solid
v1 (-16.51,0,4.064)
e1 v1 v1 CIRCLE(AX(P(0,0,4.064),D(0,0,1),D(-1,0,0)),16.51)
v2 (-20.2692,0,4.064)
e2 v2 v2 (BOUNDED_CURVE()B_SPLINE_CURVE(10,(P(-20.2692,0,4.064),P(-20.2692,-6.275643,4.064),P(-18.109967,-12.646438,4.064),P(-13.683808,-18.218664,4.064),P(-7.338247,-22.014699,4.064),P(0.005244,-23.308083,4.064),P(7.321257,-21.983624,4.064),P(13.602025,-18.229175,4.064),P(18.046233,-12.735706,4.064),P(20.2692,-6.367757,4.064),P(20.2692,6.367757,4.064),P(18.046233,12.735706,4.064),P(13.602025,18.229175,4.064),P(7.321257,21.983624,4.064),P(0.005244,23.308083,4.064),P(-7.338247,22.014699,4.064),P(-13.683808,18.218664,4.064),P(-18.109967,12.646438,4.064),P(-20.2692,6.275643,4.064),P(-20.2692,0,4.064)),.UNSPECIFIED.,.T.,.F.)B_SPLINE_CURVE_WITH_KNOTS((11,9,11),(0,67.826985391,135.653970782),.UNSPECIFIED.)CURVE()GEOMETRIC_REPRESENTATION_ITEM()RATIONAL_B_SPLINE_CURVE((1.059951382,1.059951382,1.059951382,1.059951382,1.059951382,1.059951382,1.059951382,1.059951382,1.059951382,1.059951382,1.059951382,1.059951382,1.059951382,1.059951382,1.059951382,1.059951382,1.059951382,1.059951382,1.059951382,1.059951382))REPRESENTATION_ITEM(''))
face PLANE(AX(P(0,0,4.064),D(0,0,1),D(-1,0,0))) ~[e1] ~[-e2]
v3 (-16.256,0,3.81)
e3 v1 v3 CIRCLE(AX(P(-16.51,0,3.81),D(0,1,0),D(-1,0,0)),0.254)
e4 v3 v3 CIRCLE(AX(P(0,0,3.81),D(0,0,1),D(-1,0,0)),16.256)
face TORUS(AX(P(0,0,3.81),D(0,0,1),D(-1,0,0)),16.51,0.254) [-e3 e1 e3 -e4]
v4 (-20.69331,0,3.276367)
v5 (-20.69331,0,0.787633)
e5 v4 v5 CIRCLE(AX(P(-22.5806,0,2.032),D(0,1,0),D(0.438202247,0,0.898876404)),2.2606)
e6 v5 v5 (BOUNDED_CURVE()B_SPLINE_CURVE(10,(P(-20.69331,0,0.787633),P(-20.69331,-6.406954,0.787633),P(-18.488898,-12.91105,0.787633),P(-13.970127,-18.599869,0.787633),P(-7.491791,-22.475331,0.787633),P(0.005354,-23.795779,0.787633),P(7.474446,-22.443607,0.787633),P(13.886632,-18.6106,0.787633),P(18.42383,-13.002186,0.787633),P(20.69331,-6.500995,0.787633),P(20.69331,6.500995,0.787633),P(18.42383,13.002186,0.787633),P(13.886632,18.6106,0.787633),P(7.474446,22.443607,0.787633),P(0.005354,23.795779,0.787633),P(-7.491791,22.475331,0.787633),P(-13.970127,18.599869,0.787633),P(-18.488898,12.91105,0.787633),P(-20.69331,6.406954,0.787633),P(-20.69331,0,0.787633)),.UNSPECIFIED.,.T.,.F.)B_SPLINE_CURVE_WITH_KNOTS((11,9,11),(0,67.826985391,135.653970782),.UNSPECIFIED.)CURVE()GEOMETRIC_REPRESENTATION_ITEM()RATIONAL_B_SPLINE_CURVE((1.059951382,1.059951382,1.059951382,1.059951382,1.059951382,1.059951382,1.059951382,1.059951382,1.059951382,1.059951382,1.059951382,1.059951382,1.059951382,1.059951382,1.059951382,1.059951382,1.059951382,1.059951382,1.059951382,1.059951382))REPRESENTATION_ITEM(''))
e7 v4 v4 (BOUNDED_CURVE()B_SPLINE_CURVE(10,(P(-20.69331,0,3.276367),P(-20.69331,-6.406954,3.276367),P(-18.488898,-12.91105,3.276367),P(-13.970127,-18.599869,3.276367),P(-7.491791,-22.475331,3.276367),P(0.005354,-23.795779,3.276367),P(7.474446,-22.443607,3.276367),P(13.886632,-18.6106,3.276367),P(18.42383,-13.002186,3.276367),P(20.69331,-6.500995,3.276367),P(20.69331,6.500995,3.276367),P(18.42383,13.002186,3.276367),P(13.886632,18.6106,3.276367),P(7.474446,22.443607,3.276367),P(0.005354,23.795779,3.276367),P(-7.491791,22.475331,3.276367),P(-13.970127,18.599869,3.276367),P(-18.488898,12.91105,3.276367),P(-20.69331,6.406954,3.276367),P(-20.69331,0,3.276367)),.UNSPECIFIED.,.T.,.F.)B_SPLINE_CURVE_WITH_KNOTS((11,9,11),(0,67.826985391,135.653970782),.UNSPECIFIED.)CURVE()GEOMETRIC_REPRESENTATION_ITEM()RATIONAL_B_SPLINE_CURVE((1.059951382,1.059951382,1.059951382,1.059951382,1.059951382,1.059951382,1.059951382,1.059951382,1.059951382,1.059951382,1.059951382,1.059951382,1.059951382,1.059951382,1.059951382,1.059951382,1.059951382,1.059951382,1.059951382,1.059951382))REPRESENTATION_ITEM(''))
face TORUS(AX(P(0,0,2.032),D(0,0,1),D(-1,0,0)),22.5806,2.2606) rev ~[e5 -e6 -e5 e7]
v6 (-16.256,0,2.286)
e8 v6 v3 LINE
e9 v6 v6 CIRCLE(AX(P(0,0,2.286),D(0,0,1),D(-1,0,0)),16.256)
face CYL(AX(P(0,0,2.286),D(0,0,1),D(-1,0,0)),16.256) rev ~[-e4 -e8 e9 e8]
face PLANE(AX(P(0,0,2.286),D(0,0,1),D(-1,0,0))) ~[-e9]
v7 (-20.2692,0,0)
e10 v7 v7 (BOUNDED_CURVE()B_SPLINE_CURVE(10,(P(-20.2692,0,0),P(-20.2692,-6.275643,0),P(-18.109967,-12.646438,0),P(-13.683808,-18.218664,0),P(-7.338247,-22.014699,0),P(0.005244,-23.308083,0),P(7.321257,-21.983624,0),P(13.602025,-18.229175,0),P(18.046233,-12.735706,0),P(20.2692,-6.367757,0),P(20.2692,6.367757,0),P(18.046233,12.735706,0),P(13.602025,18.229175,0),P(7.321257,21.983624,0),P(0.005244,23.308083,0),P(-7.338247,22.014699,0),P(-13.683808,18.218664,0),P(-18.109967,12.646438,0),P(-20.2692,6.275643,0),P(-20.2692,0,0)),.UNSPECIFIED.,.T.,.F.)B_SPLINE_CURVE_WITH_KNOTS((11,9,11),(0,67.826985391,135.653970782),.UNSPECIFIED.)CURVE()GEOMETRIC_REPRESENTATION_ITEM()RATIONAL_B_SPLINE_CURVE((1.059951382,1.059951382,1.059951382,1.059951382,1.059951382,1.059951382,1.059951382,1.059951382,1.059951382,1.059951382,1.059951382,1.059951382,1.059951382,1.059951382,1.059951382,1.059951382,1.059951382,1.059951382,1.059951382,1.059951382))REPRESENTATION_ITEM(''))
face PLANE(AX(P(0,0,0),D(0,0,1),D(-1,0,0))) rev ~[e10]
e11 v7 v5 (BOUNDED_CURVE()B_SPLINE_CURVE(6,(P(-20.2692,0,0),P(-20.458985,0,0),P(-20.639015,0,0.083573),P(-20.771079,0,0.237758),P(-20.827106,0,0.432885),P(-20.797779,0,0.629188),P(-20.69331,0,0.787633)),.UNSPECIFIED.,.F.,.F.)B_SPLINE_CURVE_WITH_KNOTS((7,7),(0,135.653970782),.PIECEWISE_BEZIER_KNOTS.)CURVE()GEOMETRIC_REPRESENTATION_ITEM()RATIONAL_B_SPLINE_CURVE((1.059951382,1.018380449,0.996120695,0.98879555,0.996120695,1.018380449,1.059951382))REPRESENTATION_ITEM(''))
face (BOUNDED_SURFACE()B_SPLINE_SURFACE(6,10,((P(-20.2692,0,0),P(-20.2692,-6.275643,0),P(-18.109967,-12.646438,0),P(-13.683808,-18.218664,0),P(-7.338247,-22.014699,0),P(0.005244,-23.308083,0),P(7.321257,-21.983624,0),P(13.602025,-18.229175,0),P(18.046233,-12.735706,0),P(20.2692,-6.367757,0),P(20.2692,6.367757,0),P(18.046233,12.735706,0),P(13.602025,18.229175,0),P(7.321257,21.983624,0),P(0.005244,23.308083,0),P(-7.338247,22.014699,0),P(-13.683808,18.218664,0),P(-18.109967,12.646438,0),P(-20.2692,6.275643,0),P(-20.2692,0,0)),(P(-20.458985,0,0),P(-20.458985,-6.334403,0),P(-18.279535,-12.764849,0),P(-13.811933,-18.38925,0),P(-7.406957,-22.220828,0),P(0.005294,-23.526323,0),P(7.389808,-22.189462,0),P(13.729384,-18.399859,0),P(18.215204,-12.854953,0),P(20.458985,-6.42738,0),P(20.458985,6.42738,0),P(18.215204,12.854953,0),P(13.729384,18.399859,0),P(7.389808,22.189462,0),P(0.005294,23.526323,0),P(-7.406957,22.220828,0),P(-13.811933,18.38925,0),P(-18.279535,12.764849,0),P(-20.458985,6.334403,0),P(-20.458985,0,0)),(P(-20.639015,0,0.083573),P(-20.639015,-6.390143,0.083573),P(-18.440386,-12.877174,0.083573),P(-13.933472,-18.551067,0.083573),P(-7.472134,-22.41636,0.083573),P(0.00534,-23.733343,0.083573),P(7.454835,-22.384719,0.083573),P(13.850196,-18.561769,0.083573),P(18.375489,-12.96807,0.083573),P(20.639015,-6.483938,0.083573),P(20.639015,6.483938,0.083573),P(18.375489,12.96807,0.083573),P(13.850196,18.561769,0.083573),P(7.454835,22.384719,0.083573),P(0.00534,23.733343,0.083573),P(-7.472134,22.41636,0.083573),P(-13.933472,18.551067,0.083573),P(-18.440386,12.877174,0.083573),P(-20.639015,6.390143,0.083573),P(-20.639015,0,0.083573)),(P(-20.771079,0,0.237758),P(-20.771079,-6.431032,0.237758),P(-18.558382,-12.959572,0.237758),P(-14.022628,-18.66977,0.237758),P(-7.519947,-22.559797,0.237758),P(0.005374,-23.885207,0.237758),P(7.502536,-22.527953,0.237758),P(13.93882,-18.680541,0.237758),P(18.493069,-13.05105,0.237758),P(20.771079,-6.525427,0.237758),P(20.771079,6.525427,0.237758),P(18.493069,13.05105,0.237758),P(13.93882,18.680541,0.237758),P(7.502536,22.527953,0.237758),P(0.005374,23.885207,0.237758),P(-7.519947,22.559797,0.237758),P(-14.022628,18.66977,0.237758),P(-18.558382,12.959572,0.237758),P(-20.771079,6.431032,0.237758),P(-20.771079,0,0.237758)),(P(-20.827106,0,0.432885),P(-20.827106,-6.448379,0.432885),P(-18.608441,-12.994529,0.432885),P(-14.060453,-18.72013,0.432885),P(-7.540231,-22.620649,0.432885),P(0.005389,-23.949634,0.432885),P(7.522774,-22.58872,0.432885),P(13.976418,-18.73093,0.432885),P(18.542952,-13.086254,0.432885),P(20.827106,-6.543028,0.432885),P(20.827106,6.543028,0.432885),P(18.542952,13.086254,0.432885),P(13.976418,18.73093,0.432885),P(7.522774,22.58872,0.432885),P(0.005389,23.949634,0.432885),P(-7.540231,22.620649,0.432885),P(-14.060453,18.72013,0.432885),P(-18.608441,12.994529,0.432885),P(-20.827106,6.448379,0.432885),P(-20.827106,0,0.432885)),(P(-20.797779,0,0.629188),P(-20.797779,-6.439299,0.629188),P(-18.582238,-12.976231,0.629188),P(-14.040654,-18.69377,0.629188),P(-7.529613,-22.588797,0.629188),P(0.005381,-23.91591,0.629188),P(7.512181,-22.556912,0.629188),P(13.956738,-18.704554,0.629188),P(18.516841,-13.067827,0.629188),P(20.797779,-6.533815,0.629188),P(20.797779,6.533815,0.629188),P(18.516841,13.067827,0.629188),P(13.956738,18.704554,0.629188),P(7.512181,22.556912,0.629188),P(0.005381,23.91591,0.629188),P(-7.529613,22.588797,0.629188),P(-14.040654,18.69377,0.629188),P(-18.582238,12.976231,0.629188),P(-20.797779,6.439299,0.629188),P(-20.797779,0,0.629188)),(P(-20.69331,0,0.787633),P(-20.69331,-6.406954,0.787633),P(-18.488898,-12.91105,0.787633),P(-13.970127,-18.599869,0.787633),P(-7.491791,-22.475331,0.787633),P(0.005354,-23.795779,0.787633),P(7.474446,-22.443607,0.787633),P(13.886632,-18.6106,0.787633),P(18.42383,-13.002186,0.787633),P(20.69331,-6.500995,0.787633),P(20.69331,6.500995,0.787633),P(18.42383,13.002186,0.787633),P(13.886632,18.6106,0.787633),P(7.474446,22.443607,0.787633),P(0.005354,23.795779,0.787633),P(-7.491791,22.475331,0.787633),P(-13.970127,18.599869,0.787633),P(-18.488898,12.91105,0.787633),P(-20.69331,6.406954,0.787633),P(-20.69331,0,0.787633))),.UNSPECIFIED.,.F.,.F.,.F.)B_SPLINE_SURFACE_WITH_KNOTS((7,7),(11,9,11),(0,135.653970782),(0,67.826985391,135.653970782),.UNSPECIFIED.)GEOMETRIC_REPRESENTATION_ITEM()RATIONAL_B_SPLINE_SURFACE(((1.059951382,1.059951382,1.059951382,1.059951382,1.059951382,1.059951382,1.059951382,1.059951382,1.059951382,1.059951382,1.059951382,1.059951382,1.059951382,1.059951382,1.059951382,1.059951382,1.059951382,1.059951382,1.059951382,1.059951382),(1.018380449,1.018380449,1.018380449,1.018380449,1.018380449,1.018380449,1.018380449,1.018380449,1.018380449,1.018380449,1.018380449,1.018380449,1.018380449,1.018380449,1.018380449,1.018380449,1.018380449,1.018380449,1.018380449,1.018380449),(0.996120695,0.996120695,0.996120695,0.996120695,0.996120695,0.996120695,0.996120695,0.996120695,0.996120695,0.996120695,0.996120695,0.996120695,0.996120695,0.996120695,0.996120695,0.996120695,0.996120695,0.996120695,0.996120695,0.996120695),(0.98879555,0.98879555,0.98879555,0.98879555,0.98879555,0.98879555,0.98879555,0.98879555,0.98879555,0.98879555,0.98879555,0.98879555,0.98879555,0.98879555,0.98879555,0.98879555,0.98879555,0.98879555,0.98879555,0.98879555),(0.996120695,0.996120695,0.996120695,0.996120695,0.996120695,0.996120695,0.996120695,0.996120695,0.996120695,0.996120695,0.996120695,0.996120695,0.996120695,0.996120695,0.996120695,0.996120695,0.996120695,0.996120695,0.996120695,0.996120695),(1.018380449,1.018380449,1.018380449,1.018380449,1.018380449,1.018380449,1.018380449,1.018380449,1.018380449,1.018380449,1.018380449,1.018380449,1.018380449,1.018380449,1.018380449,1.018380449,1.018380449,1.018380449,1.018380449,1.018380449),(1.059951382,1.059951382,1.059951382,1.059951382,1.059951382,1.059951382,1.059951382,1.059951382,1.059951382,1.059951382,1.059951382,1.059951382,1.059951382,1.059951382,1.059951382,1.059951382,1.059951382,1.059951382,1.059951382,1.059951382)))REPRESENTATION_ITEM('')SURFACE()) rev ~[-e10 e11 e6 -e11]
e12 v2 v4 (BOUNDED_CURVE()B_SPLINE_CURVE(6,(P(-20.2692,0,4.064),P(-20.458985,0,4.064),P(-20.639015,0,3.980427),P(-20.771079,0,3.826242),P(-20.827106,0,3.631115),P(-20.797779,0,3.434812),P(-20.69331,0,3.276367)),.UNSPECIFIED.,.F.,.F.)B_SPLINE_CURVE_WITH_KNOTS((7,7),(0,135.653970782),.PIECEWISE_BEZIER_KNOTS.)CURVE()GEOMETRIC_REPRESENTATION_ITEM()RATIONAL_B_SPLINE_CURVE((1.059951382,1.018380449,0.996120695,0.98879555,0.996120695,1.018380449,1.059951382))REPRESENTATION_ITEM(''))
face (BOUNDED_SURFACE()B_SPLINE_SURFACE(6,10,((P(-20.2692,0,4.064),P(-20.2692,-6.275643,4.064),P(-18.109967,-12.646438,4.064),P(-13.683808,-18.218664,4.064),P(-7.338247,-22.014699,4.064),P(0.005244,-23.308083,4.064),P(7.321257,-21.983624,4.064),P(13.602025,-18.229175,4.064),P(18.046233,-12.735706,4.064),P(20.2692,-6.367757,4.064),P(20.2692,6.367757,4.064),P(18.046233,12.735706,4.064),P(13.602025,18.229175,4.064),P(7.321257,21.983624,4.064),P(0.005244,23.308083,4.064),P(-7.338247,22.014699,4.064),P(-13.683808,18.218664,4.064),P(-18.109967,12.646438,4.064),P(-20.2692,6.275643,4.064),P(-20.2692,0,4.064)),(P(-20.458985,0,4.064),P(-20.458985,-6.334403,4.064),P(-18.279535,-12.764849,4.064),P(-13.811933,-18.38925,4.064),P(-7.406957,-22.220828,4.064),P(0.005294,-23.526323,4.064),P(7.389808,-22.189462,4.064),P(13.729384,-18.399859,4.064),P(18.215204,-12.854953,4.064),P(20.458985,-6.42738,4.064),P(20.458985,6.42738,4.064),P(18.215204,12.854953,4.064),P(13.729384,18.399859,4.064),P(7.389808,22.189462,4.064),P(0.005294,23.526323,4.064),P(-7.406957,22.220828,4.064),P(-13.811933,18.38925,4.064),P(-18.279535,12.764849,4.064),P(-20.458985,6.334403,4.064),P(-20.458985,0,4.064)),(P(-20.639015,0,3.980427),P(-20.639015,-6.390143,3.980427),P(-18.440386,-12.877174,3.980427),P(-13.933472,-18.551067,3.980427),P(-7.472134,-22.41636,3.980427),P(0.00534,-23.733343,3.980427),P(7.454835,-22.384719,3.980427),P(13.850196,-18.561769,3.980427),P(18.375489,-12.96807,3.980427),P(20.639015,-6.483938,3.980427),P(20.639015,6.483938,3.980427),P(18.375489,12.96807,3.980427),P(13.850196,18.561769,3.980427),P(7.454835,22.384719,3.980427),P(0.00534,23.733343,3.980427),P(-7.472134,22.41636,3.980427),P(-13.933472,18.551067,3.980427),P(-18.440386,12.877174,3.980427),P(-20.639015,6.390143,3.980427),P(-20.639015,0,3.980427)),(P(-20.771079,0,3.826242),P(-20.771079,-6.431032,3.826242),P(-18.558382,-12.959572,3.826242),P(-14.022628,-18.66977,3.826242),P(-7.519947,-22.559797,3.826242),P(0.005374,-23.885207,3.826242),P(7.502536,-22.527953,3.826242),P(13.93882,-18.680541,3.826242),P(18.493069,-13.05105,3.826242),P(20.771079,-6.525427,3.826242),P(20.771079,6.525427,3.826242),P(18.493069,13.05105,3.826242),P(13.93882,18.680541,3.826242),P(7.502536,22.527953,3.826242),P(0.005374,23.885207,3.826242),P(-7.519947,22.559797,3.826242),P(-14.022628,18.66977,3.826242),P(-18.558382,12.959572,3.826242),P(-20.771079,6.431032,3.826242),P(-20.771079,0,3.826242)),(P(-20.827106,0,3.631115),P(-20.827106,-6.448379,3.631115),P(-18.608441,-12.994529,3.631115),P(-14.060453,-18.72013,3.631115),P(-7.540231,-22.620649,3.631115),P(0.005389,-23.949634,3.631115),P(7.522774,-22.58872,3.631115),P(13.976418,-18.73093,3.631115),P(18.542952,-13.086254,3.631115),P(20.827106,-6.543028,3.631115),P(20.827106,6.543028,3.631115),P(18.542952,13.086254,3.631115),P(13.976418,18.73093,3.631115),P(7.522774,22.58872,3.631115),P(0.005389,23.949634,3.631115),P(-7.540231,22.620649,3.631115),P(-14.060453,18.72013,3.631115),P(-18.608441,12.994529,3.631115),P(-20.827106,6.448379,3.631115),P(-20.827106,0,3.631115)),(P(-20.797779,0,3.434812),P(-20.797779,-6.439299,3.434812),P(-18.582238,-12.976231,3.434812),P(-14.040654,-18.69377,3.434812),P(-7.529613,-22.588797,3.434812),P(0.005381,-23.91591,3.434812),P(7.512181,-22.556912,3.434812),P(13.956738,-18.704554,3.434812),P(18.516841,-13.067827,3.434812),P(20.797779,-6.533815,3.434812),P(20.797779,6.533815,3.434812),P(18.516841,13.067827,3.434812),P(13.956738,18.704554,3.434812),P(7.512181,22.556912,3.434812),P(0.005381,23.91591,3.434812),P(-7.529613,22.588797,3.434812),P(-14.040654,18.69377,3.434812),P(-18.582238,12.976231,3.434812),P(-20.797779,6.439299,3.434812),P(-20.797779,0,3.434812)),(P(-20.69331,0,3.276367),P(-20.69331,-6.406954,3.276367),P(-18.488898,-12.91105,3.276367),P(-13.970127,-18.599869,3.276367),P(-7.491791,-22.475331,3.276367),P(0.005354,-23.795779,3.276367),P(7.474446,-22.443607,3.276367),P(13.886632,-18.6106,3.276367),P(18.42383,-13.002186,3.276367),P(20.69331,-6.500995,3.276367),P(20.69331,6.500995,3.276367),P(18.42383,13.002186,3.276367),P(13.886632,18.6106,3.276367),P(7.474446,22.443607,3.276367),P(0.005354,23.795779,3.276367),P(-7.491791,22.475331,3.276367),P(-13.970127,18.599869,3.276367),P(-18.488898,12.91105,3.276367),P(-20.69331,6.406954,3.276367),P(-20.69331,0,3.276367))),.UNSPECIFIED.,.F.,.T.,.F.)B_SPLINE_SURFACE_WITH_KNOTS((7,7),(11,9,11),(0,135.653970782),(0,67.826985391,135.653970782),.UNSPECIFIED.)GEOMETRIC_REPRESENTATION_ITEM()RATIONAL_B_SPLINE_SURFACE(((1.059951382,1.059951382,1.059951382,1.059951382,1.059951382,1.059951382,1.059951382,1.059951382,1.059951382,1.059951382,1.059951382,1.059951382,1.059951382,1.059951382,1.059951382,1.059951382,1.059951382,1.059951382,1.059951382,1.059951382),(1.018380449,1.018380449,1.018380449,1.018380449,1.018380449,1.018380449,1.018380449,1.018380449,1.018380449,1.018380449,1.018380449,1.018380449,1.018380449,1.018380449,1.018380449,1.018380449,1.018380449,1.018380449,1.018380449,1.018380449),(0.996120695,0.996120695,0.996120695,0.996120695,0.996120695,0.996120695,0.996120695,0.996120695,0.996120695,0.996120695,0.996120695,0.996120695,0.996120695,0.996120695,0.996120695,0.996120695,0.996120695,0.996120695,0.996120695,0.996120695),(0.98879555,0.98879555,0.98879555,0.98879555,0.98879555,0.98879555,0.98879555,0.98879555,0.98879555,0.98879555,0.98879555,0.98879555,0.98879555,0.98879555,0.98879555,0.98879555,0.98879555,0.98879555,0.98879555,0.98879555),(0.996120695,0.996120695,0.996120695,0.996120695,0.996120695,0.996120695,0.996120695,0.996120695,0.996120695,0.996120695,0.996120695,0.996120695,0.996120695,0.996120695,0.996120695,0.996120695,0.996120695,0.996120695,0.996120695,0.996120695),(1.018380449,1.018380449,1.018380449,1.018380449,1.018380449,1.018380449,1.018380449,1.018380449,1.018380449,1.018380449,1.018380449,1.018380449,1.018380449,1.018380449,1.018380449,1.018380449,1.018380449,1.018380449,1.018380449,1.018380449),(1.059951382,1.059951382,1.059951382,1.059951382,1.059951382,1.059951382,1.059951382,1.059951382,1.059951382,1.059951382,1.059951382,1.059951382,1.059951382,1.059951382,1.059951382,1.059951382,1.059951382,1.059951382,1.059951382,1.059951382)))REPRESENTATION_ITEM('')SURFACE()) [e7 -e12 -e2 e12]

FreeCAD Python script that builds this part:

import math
import FreeCAD as App
import Part
import Sketcher
Q = App.Units.Quantity


def edges_at(feature, points):
    """Names of the edges that pass closest to the given points."""
    edges = feature.Shape.Edges
    near = lambda p: min(range(len(edges)), key=lambda i: edges[i].distToShape(Part.Vertex(*p))[0])
    return sorted({f"Edge{near(p) + 1}" for p in points})

doc = App.newDocument("Part")
params = doc.addObject("Spreadsheet::Sheet", "Params")
for row, (alias, value) in enumerate([
    ("sketch1_radius", "0.089 in"),
    ("sketch1_width", "0.85 in"),
    ("sketch1_width2", "0.64 in"),
    ("sketch1_height", "0.09 in"),
    ("sketch1_height2", "0.07 in"),
    ("revolution_angle", "360 deg"),
    ("fillet_radius", "0.02 in"),
    ("fillet2_radius", "0.01 in"),
], start=1):
    params.set(f"A{row}", alias)
    params.set(f"B{row}", "=" + value)
    params.setAlias(f"B{row}", alias)

body = doc.addObject("PartDesign::Body", "Body")

# Sketch on XZ plane
sketch1 = doc.addObject("Sketcher::SketchObject", "Sketch")
body.addObject(sketch1)
sketch1.AttachmentSupport = (doc.XZ_Plane, [""])
sketch1.MapMode = "FlatFace"
sketch1.addGeometry([
    Part.LineSegment(App.Vector(-21.6, 0, 0), App.Vector(0, 0, 0)),  # 0
    Part.LineSegment(App.Vector(0, 0, 0), App.Vector(0, 2.3, 0)),  # 1
    Part.LineSegment(App.Vector(0, 2.3, 0), App.Vector(-16.3, 2.3, 0)),  # 2
    Part.LineSegment(App.Vector(-16.3, 2.3, 0), App.Vector(-16.3, 4.1, 0)),  # 3
    Part.LineSegment(App.Vector(-16.3, 4.1, 0), App.Vector(-21.6, 4.1, 0)),  # 4
    Part.ArcOfCircle(Part.Circle(App.Vector(-22.6, 2, 0), App.Vector(0, 0, 1), 2.3), math.radians(-64), math.radians(64)),  # 5
], False)
sketch1.addConstraint([
    Sketcher.Constraint("Coincident", 0, 2, 1, 1),
    Sketcher.Constraint("Coincident", 1, 2, 2, 1),
    Sketcher.Constraint("Coincident", 2, 2, 3, 1),
    Sketcher.Constraint("Coincident", 3, 2, 4, 1),
    Sketcher.Constraint("Coincident", 4, 2, 5, 2),
    Sketcher.Constraint("Coincident", 5, 1, 0, 1),
    Sketcher.Constraint("Horizontal", 0),
    Sketcher.Constraint("Vertical", 1),
    Sketcher.Constraint("Horizontal", 2),
    Sketcher.Constraint("Vertical", 3),
    Sketcher.Constraint("Horizontal", 4),
    Sketcher.Constraint("Coincident", 0, 2, -1, 1),
    Sketcher.Constraint("Vertical", 4, 2, 5, 1),
    Sketcher.Constraint("Radius", 5, Q("0.089 in")),
    Sketcher.Constraint("DistanceX", 0, 1, 0, 2, Q("0.85 in")),
    Sketcher.Constraint("DistanceX", 2, 2, 2, 1, Q("0.64 in")),
    Sketcher.Constraint("DistanceY", 1, 1, 1, 2, Q("0.09 in")),
    Sketcher.Constraint("DistanceY", 3, 1, 3, 2, Q("0.07 in")),
])
sketch1.setExpression("Constraints[13]", "Params.sketch1_radius")
sketch1.setExpression("Constraints[14]", "Params.sketch1_width")
sketch1.setExpression("Constraints[15]", "Params.sketch1_width2")
sketch1.setExpression("Constraints[16]", "Params.sketch1_height")
sketch1.setExpression("Constraints[17]", "Params.sketch1_height2")
revolution = doc.addObject("PartDesign::Revolution", "Revolution")
body.addObject(revolution)
revolution.Profile = sketch1
revolution.ReferenceAxis = (sketch1, ["V_Axis"])
revolution.setExpression("Angle", "Params.revolution_angle")
doc.recompute()

fillet = doc.addObject("PartDesign::Fillet", "Fillet")
body.addObject(fillet)
fillet.Base = (revolution, edges_at(revolution, [(21.59, 0, 4.064), (21.59, 0, 0)]))
fillet.setExpression("Radius", "Params.fillet_radius")
doc.recompute()

fillet2 = doc.addObject("PartDesign::Fillet", "Fillet001")
body.addObject(fillet2)
fillet2.Base = (fillet, edges_at(fillet, [(16.256, 0, 4.064)]))
fillet2.setExpression("Radius", "Params.fillet2_radius")

doc.recompute()
